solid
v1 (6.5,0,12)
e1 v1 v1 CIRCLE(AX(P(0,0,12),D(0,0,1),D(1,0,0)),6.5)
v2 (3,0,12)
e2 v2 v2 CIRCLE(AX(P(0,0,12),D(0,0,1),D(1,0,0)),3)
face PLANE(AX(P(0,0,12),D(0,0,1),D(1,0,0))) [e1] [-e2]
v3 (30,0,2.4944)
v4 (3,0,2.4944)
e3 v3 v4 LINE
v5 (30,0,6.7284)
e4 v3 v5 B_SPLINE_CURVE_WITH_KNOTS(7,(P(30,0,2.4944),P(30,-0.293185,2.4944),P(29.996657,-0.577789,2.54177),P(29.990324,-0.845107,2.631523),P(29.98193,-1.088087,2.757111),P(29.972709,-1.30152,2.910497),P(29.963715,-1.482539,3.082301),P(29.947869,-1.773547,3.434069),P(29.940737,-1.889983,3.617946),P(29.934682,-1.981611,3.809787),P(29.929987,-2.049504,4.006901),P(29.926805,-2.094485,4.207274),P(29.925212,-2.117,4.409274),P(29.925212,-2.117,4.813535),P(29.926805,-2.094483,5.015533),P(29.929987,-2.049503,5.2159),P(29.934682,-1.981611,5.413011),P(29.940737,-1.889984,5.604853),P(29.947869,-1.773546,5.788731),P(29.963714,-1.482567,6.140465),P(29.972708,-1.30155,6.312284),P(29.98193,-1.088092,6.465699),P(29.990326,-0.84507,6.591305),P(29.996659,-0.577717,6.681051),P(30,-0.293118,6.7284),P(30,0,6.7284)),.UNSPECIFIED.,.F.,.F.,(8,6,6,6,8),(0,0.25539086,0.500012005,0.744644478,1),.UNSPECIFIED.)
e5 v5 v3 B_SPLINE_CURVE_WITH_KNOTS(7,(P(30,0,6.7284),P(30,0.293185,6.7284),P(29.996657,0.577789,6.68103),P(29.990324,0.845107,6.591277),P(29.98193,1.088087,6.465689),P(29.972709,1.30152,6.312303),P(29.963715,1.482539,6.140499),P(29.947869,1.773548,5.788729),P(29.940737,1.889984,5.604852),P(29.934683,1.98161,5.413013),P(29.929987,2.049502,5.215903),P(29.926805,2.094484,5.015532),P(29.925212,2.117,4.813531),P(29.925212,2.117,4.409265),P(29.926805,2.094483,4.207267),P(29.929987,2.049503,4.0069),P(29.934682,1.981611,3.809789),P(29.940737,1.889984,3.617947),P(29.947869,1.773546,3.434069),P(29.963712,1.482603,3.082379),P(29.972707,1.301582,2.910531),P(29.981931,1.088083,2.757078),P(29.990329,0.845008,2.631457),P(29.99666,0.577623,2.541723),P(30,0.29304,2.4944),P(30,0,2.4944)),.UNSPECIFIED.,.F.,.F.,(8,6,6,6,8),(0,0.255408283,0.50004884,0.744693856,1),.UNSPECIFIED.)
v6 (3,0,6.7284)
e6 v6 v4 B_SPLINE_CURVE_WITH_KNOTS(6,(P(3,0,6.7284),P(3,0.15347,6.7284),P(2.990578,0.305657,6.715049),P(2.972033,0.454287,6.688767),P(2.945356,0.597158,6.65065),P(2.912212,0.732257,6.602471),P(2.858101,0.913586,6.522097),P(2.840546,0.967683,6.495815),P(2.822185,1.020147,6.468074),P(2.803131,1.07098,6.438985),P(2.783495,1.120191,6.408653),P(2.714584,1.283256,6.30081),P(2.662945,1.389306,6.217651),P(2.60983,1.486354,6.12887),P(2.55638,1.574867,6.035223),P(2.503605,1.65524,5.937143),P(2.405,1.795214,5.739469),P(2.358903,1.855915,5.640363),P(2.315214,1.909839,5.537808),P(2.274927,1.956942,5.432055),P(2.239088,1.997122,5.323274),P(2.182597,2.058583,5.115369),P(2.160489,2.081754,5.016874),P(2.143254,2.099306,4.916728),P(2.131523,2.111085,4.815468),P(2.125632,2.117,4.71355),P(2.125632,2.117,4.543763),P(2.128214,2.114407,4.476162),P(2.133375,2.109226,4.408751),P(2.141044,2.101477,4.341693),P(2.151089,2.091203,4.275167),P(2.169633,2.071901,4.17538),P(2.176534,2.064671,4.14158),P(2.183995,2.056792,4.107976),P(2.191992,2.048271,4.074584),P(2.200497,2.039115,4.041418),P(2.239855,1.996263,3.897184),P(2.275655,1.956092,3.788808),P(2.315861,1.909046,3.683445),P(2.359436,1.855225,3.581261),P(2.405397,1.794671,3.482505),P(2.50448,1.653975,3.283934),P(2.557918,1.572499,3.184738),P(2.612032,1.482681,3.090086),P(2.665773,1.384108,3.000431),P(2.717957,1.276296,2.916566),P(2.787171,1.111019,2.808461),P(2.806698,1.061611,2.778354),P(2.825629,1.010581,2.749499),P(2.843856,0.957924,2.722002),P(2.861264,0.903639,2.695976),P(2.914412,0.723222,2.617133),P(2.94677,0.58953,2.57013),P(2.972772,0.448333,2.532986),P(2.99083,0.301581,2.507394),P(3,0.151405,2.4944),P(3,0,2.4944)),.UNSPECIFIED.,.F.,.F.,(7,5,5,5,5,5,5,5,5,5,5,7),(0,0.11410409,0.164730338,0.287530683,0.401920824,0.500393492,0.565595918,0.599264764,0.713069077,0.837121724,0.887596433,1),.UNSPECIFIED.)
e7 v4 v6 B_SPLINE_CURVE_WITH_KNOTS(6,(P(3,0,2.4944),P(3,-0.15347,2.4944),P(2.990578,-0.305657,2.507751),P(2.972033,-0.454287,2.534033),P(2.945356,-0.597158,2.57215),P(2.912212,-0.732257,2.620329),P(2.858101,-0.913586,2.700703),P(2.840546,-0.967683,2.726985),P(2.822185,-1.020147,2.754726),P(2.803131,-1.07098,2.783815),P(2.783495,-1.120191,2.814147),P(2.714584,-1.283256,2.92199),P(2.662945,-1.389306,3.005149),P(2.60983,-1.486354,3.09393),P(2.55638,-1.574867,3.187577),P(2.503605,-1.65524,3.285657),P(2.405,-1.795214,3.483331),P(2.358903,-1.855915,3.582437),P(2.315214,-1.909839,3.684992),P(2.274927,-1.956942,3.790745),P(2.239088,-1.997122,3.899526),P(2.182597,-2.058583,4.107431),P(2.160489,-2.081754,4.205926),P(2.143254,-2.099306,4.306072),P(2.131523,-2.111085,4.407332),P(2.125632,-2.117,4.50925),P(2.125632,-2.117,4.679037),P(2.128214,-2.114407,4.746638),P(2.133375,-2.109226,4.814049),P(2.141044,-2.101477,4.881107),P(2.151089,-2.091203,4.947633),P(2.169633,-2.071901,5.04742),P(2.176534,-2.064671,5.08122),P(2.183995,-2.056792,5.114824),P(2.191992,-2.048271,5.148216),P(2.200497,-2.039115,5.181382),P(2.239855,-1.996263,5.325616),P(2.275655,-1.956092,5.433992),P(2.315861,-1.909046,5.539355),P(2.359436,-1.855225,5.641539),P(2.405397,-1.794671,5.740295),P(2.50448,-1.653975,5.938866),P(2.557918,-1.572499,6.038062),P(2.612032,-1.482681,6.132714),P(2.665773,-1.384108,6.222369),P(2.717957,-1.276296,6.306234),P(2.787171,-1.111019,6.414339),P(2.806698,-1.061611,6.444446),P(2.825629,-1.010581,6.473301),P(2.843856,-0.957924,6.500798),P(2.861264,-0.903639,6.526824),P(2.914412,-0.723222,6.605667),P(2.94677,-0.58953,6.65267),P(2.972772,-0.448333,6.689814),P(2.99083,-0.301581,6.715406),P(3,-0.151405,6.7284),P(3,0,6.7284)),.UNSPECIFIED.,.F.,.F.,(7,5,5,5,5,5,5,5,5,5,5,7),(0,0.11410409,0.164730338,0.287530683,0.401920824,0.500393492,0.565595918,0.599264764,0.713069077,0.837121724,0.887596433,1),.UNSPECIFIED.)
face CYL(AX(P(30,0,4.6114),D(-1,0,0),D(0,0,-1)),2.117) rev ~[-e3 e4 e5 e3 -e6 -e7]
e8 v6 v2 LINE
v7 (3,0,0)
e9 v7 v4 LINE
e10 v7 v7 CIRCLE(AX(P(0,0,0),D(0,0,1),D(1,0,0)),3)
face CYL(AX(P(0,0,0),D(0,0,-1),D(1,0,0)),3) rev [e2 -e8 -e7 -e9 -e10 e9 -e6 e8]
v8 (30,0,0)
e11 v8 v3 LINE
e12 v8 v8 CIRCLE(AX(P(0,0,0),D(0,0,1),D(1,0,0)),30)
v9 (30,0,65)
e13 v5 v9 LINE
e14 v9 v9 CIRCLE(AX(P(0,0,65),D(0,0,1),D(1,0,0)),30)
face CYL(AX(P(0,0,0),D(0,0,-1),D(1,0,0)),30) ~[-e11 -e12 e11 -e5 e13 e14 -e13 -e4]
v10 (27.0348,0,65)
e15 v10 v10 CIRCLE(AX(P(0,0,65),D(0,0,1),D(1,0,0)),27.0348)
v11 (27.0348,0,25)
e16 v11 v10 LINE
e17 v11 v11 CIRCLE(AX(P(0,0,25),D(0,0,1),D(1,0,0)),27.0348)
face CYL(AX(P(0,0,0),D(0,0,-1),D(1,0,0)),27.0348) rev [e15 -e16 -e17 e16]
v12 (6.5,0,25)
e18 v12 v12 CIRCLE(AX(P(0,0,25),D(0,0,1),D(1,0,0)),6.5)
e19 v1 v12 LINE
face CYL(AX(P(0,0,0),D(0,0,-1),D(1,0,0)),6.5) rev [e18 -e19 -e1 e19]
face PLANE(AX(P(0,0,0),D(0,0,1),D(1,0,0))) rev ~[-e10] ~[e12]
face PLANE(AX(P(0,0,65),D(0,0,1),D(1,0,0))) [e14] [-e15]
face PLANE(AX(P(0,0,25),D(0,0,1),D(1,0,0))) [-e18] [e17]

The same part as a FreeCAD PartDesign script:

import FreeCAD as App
import Part
import Sketcher

doc = App.newDocument("Part")
body = doc.addObject("PartDesign::Body", "Body")

# Sketch on XY plane
sketch1 = doc.addObject("Sketcher::SketchObject", "Sketch")
body.addObject(sketch1)
sketch1.AttachmentSupport = (doc.XY_Plane, [""])
sketch1.MapMode = "FlatFace"
sketch1.addGeometry([
    Part.Circle(App.Vector(0, 0, 0), App.Vector(0, 0, 1), 6.5),
    Part.Circle(App.Vector(0, 0, 0), App.Vector(0, 0, 1), 3),
], False)
sketch1.addConstraint([
    Sketcher.Constraint("Coincident", 0, 3, -1, 1),
    Sketcher.Constraint("Coincident", 1, 3, -1, 1),
    Sketcher.Constraint("Diameter", 0, 13.0),
    Sketcher.Constraint("Diameter", 1, 6.0),
])
pad1 = doc.addObject("PartDesign::Pad", "Pad")
body.addObject(pad1)
pad1.Profile = sketch1
pad1.Length = 12

# Sketch on XY plane
sketch2 = doc.addObject("Sketcher::SketchObject", "Sketch001")
body.addObject(sketch2)
sketch2.AttachmentSupport = (doc.XY_Plane, [""])
sketch2.MapMode = "FlatFace"
sketch2.addGeometry([
    Part.Circle(App.Vector(0, 0, 0), App.Vector(0, 0, 1), 27),
    Part.Circle(App.Vector(0, 0, 0), App.Vector(0, 0, 1), 6),
], False)
sketch2.addConstraint([
    Sketcher.Constraint("Coincident", 0, 3, -1, 1),
    Sketcher.Constraint("Coincident", 1, 3, -1, 1),
    Sketcher.Constraint("Diameter", 1, 13.0),
    Sketcher.Constraint("Diameter", 0, 54.0696),
])
pad2 = doc.addObject("PartDesign::Pad", "Pad001")
body.addObject(pad2)
pad2.Profile = sketch2
pad2.Length = 25

# Sketch on XY plane
sketch3 = doc.addObject("Sketcher::SketchObject", "Sketch002")
body.addObject(sketch3)
sketch3.AttachmentSupport = (doc.XY_Plane, [""])
sketch3.MapMode = "FlatFace"
sketch3.addGeometry([
    Part.Circle(App.Vector(0, 0, 0), App.Vector(0, 0, 1), 30),
    Part.Circle(App.Vector(0, 0, 0), App.Vector(0, 0, 1), 27),
], False)
sketch3.addConstraint([
    Sketcher.Constraint("Coincident", 0, 3, -1, 1),
    Sketcher.Constraint("Coincident", 1, 3, -1, 1),
    Sketcher.Constraint("Diameter", 0, 60.0),
    Sketcher.Constraint("Diameter", 1, 54.0696),
])
pad3 = doc.addObject("PartDesign::Pad", "Pad002")
body.addObject(pad3)
pad3.Profile = sketch3
pad3.Length = 65

# Sketch on YZ plane
sketch4 = doc.addObject("Sketcher::SketchObject", "Sketch003")
body.addObject(sketch4)
sketch4.AttachmentSupport = (doc.YZ_Plane, [""])
sketch4.MapMode = "FlatFace"
sketch4.AttachmentOffset = App.Placement(App.Vector(0, 0, 30), App.Rotation())
sketch4.addGeometry(Part.Circle(App.Vector(0, 4.6, 0), App.Vector(0, 0, 1), 2.1), False)
sketch4.addConstraint([
    Sketcher.Constraint("PointOnObject", 0, 3, -2),
    Sketcher.Constraint("Diameter", 0, 4.234),
    Sketcher.Constraint("DistanceY", -1, 1, 0, 3, 4.6114),
])
doc.recompute()
hole = doc.addObject("PartDesign::Hole", "Hole")
body.addObject(hole)
hole.Profile = sketch4
hole.ThreadType = "None"
hole.Diameter = 4.234
hole.DepthType = "Dimension"
hole.Depth = 29
hole.DrillPoint = "Flat"

doc.recompute()
